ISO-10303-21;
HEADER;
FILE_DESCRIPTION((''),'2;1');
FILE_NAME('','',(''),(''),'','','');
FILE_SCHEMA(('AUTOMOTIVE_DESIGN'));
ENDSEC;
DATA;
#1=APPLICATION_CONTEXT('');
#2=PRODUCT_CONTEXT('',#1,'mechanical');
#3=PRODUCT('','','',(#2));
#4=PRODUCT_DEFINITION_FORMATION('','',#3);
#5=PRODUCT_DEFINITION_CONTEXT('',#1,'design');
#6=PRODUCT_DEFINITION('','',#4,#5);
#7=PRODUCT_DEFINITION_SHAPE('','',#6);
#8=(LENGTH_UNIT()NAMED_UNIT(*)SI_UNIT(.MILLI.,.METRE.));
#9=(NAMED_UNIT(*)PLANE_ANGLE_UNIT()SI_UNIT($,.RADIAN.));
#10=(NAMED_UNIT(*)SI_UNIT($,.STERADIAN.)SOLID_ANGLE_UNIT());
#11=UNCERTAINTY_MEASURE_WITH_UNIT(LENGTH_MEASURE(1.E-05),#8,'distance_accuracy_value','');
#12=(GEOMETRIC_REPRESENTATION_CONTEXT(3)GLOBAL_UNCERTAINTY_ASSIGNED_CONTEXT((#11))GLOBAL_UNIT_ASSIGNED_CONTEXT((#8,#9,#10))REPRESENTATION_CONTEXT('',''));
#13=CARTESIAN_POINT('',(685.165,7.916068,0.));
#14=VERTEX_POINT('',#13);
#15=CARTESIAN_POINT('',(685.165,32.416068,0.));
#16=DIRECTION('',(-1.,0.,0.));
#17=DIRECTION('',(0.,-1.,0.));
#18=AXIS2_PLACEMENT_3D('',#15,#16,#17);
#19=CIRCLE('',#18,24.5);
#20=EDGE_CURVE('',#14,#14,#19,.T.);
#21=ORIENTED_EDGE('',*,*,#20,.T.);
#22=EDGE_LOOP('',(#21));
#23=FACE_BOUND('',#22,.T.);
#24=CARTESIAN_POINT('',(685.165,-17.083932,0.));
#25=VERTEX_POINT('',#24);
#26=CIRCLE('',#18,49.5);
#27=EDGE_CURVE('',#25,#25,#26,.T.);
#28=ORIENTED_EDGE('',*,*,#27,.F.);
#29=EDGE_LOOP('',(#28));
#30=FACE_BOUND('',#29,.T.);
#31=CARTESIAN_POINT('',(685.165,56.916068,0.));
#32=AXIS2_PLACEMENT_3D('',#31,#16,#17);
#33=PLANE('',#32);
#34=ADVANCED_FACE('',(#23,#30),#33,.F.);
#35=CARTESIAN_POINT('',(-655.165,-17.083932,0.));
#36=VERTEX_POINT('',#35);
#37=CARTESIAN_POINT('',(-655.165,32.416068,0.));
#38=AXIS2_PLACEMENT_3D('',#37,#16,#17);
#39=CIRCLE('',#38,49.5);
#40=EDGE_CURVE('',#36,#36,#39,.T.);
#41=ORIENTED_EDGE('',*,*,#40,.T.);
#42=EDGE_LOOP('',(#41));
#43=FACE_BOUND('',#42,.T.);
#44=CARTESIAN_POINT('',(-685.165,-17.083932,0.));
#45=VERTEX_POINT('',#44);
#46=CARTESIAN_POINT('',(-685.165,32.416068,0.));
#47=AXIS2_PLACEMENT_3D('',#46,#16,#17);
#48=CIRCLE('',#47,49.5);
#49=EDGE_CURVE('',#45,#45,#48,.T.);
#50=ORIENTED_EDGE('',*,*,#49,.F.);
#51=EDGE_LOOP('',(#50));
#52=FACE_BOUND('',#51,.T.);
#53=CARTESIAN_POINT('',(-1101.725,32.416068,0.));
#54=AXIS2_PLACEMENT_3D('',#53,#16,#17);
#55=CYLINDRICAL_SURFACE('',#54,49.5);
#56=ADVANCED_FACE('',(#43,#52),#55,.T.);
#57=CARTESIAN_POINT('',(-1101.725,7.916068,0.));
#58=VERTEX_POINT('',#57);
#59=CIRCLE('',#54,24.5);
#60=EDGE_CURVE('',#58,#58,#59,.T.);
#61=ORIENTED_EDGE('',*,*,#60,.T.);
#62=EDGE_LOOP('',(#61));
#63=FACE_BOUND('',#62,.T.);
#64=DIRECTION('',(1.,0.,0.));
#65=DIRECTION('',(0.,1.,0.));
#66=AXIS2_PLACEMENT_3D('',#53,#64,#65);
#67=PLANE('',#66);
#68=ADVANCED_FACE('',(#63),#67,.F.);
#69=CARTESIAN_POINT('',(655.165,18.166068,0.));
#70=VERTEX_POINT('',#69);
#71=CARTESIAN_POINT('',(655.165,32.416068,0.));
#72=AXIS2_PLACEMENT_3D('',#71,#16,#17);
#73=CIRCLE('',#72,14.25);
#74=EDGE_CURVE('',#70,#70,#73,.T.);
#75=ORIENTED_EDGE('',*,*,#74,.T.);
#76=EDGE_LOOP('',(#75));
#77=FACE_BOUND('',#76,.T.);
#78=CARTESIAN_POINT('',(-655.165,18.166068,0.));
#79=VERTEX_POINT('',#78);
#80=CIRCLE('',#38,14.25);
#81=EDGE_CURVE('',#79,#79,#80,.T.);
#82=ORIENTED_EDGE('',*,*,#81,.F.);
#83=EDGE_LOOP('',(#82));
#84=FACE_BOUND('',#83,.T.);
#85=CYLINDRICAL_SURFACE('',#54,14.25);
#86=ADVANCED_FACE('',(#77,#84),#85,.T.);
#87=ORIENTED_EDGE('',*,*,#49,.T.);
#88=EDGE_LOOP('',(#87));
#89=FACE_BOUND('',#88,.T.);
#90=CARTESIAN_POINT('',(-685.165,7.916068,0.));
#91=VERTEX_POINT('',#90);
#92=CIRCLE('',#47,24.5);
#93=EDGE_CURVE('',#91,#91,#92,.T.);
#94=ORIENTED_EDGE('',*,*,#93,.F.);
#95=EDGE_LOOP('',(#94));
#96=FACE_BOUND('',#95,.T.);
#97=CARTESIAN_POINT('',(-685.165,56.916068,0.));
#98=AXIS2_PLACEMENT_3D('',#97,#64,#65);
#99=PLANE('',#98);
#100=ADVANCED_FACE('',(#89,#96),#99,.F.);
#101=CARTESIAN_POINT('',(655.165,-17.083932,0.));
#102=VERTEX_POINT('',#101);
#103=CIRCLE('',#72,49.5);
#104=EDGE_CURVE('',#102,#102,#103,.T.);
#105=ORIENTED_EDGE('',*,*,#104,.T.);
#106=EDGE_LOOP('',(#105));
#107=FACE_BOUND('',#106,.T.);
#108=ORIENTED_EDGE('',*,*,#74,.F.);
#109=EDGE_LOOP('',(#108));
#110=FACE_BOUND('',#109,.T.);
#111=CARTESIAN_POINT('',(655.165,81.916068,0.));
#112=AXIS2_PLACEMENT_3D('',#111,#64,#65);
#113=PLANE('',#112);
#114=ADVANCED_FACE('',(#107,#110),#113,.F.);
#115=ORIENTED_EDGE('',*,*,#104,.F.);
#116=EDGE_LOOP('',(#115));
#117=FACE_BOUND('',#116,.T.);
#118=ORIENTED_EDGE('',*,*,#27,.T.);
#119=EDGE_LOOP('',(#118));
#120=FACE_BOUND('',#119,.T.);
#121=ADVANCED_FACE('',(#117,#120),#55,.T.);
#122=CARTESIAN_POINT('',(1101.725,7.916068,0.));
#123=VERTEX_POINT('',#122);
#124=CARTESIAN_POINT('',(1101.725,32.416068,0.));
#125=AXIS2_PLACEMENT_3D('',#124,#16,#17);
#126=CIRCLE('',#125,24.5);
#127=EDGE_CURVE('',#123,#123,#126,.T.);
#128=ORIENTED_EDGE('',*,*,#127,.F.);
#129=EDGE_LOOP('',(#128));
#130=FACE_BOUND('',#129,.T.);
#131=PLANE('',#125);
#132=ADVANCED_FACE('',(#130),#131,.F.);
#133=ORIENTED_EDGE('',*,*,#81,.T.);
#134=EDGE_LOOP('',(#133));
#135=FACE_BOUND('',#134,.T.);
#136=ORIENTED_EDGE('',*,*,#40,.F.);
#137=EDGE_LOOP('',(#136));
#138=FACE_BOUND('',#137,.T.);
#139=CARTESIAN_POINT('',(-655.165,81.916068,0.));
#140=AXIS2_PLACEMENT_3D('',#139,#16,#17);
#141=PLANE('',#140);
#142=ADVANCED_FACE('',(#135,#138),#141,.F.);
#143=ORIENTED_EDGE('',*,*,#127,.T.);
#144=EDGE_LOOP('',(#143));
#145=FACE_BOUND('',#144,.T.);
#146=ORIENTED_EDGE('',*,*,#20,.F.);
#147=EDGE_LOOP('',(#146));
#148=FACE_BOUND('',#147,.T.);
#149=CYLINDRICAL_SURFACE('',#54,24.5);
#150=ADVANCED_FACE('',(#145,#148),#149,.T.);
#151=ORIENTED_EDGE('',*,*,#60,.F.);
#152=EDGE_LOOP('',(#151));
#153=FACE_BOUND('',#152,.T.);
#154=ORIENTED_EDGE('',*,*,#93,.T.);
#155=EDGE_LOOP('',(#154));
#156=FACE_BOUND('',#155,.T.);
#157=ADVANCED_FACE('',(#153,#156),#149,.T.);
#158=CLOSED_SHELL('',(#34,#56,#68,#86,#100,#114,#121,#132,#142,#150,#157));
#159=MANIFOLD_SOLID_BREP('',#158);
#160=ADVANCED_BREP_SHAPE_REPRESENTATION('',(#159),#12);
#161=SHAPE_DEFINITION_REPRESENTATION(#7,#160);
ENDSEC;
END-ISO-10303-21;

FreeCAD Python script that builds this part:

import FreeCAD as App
import Part
import Sketcher
from FreeCAD import Vector

doc = App.newDocument("Part")
body = doc.addObject("PartDesign::Body", "Body")

# Sketch on XY plane
sketch1 = doc.addObject("Sketcher::SketchObject", "Sketch")
body.addObject(sketch1)
sketch1.AttachmentSupport = (doc.XY_Plane, [""])
sketch1.MapMode = "FlatFace"
sketch1.addGeometry([
    Part.LineSegment(Vector(1102, 32, 0), Vector(1102, 57, 0)),  # 0
    Part.LineSegment(Vector(1102, 57, 0), Vector(685, 57, 0)),  # 1
    Part.LineSegment(Vector(685, 57, 0), Vector(685, 82, 0)),  # 2
    Part.LineSegment(Vector(685, 82, 0), Vector(655, 82, 0)),  # 3
    Part.LineSegment(Vector(655, 82, 0), Vector(655, 47, 0)),  # 4
    Part.LineSegment(Vector(655, 47, 0), Vector(-655, 47, 0)),  # 5
    Part.LineSegment(Vector(-655, 47, 0), Vector(-655, 82, 0)),  # 6
    Part.LineSegment(Vector(-655, 82, 0), Vector(-685, 82, 0)),  # 7
    Part.LineSegment(Vector(-685, 82, 0), Vector(-685, 57, 0)),  # 8
    Part.LineSegment(Vector(-685, 57, 0), Vector(-1102, 57, 0)),  # 9
    Part.LineSegment(Vector(-1102, 57, 0), Vector(-1102, 32, 0)),  # 10
    Part.LineSegment(Vector(-1102, 32, 0), Vector(1102, 32, 0)),  # 11
], False)
sketch1.addGeometry(Part.LineSegment(Vector(-1102, 32, 0), Vector(1102, 32, 0)), True)  # axis
sketch1.addConstraint([
    Sketcher.Constraint("Coincident", 0, 2, 1, 1),
    Sketcher.Constraint("Coincident", 1, 2, 2, 1),
    Sketcher.Constraint("Coincident", 2, 2, 3, 1),
    Sketcher.Constraint("Coincident", 3, 2, 4, 1),
    Sketcher.Constraint("Coincident", 4, 2, 5, 1),
    Sketcher.Constraint("Coincident", 5, 2, 6, 1),
    Sketcher.Constraint("Coincident", 6, 2, 7, 1),
    Sketcher.Constraint("Coincident", 7, 2, 8, 1),
    Sketcher.Constraint("Coincident", 8, 2, 9, 1),
    Sketcher.Constraint("Coincident", 9, 2, 10, 1),
    Sketcher.Constraint("Coincident", 10, 2, 11, 1),
    Sketcher.Constraint("Coincident", 11, 2, 0, 1),
    Sketcher.Constraint("Vertical", 0),
    Sketcher.Constraint("Horizontal", 1),
    Sketcher.Constraint("Vertical", 2),
    Sketcher.Constraint("Horizontal", 3),
    Sketcher.Constraint("Vertical", 4),
    Sketcher.Constraint("Horizontal", 5),
    Sketcher.Constraint("Vertical", 6),
    Sketcher.Constraint("Horizontal", 7),
    Sketcher.Constraint("Vertical", 8),
    Sketcher.Constraint("Horizontal", 9),
    Sketcher.Constraint("Vertical", 10),
    Sketcher.Constraint("Horizontal", 11),
    Sketcher.Constraint("Horizontal", 12),
    Sketcher.Constraint("Coincident", 12, 1, 10, 2),
    Sketcher.Constraint("Symmetric", 3, 2, 6, 2, -2),
    Sketcher.Constraint("Symmetric", 1, 2, 8, 2, -2),
    Sketcher.Constraint("Vertical", 0, 2, 12, 2),
    Sketcher.Constraint("Equal", 1, 9),
    Sketcher.Constraint("DistanceX", 3, 2, 3, 1, 30.0),
    Sketcher.Constraint("DistanceY", 2, 1, 2, 2, 25.0),
    Sketcher.Constraint("DistanceY", 0, 1, 0, 2, 24.5),
    Sketcher.Constraint("DistanceX", 1, 2, 1, 1, 416.56),
    Sketcher.Constraint("DistanceX", 5, 2, 5, 1, 1310.33),
    Sketcher.Constraint("DistanceY", 4, 2, 4, 1, 35.25),
    Sketcher.Constraint("DistanceY", -1, 1, 0, 2, 56.916068),
])
revolution = doc.addObject("PartDesign::Revolution", "Revolution")
body.addObject(revolution)
revolution.Profile = sketch1
revolution.ReferenceAxis = (sketch1, ["Axis0"])
revolution.Angle = 360

doc.recompute()
